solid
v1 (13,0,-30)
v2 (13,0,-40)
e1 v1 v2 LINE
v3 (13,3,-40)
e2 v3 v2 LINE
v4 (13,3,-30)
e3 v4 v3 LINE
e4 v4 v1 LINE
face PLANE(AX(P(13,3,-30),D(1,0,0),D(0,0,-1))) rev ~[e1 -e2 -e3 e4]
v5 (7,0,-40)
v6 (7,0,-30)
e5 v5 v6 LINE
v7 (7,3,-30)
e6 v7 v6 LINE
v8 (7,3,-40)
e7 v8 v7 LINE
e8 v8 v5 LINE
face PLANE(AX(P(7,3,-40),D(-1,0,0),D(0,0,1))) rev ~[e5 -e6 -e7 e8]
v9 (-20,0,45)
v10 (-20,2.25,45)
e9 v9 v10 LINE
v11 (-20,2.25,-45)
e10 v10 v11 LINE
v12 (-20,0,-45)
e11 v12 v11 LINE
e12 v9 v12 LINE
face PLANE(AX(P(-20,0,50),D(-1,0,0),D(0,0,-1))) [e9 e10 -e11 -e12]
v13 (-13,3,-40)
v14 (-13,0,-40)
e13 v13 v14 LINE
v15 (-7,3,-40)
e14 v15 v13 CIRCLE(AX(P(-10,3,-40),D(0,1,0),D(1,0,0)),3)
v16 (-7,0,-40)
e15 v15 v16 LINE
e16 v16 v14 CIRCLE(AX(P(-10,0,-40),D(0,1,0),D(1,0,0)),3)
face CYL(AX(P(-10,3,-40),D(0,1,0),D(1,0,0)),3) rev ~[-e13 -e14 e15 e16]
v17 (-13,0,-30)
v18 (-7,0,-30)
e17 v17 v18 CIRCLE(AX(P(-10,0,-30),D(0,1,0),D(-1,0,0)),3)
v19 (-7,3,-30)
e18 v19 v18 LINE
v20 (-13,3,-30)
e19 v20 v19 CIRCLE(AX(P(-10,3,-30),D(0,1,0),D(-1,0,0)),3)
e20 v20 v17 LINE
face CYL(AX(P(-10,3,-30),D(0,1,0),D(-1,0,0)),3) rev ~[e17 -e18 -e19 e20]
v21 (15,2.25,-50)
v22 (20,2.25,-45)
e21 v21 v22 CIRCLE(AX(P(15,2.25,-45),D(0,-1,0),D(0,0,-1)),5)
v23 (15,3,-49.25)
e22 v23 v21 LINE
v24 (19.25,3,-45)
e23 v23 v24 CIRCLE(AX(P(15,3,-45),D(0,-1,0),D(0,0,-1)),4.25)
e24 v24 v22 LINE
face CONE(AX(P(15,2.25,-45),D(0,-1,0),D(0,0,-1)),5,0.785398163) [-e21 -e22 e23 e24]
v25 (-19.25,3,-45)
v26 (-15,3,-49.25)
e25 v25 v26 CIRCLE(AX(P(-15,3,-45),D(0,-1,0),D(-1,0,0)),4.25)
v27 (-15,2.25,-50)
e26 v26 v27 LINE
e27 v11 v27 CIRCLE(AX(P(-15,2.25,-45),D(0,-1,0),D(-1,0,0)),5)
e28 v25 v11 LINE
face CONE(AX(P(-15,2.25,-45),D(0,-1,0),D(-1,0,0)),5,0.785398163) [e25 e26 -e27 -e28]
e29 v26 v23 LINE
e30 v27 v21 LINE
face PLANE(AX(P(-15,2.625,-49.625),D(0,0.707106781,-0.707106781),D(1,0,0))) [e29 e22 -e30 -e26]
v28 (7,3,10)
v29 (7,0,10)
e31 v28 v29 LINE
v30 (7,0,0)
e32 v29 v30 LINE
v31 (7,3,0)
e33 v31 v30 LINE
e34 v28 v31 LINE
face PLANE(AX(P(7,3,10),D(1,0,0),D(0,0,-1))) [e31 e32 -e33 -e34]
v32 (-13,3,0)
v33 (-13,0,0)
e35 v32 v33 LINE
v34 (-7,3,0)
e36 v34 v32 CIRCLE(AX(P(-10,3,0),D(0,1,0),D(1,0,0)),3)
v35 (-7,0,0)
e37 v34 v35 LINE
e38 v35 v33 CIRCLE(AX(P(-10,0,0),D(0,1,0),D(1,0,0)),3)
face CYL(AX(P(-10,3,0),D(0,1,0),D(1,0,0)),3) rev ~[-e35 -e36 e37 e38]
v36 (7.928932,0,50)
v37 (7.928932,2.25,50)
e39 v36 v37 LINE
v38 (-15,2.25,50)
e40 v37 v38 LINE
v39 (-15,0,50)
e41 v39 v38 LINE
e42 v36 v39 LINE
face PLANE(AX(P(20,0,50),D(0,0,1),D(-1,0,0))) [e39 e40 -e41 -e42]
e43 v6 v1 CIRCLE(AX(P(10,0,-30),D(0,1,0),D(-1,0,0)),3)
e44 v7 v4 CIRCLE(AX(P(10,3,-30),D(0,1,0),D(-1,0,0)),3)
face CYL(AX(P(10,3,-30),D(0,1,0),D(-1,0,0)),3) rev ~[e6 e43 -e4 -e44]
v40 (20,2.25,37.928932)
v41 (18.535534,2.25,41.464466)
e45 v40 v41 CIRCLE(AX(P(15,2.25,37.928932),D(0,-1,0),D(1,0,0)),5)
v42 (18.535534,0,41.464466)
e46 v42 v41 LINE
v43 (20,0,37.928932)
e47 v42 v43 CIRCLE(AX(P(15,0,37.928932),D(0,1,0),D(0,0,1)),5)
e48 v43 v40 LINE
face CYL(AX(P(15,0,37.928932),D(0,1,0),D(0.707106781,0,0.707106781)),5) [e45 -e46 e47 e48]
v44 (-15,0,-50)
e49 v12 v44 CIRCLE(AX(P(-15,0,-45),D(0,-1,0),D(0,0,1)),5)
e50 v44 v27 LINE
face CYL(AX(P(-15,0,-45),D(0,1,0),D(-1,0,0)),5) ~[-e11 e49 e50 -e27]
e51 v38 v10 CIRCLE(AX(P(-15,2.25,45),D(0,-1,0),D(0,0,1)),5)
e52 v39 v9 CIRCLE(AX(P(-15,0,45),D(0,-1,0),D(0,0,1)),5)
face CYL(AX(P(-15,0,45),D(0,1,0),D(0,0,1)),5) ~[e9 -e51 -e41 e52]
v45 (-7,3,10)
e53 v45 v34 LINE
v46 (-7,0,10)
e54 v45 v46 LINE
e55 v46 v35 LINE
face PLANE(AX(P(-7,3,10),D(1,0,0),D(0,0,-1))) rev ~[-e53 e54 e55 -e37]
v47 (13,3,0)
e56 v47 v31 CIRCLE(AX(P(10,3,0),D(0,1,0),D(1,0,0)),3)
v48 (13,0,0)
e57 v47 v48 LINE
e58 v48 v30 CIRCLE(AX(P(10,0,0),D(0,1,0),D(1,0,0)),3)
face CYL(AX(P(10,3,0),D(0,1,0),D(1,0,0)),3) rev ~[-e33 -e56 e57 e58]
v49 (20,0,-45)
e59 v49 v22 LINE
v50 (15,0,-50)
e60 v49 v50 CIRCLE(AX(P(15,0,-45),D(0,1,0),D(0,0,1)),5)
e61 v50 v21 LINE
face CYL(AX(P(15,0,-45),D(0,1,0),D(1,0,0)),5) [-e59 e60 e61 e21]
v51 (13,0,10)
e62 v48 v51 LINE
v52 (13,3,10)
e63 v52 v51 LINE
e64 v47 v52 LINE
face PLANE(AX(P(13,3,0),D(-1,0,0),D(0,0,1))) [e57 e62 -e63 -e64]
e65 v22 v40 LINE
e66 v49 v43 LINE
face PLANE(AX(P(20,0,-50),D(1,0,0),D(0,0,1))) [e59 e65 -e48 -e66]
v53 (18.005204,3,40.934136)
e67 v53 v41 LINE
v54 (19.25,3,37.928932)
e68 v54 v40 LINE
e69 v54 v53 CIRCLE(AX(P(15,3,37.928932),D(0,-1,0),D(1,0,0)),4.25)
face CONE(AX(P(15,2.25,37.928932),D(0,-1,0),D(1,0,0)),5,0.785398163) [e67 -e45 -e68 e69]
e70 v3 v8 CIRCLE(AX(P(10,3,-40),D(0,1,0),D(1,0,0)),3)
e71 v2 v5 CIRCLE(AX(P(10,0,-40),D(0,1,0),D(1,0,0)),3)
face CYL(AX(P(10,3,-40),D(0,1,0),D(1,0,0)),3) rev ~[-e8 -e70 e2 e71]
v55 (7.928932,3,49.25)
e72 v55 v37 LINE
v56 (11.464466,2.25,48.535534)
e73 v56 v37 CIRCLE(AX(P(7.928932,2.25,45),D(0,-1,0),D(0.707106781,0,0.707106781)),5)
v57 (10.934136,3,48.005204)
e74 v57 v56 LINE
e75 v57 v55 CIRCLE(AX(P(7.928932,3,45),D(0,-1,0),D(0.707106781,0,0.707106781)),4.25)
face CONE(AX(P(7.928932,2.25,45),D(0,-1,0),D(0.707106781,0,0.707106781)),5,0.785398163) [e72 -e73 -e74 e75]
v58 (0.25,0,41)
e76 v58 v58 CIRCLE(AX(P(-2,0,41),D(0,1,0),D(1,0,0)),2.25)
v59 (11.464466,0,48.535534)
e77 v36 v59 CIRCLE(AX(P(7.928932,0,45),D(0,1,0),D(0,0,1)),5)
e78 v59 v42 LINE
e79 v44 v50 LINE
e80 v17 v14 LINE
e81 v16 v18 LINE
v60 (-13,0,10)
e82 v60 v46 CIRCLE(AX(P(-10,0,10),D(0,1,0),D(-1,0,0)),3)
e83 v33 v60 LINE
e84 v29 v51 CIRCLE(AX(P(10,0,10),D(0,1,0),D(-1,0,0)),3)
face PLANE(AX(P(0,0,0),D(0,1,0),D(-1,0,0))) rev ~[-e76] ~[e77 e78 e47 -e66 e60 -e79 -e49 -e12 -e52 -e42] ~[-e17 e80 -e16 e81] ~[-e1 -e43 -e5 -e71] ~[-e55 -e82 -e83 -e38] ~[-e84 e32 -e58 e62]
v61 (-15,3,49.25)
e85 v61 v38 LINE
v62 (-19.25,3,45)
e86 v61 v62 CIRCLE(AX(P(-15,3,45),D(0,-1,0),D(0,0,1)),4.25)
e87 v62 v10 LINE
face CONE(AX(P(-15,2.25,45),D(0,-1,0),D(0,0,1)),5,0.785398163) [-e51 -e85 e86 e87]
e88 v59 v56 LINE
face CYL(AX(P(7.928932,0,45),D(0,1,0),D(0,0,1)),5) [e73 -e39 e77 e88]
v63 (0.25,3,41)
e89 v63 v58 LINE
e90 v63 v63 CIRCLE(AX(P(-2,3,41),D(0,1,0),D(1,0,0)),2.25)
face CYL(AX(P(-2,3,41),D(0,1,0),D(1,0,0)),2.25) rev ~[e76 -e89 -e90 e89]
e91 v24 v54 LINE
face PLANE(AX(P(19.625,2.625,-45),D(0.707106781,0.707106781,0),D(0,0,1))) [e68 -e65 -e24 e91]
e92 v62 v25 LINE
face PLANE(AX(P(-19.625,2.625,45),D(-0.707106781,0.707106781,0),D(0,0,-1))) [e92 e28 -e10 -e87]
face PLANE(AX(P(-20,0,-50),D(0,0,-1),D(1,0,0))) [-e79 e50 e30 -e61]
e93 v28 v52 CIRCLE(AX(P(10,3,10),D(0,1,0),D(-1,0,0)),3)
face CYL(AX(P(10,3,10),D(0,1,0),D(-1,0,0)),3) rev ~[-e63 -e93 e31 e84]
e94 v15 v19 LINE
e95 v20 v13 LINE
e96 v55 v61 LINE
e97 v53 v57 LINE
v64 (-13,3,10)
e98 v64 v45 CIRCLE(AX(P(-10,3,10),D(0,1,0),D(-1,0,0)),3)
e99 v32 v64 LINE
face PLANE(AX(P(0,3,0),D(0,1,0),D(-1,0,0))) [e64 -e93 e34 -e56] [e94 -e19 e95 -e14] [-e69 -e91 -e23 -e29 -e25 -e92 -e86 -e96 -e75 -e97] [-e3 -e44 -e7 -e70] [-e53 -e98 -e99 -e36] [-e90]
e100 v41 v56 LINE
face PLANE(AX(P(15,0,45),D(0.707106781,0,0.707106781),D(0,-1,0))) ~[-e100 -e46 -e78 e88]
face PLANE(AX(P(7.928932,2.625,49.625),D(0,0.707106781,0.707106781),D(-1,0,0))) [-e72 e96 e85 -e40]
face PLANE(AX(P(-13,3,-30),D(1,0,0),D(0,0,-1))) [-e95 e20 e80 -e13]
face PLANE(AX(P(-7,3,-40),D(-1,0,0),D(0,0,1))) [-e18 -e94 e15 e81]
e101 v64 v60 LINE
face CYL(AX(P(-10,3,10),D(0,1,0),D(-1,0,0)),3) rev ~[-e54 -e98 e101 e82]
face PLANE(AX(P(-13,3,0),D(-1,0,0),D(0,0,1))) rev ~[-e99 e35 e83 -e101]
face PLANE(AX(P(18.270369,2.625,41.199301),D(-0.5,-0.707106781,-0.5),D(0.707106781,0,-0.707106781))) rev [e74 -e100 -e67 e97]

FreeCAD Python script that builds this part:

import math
import FreeCAD as App
import Part
import Sketcher
Q = App.Units.Quantity


def edges_at(feature, points):
    """Names of the edges that pass closest to the given points."""
    edges = feature.Shape.Edges
    near = lambda p: min(range(len(edges)), key=lambda i: edges[i].distToShape(Part.Vertex(*p))[0])
    return sorted({f"Edge{near(p) + 1}" for p in points})


def add_polygon(sketch, points):
    """Adds a closed chain of lines whose ends are joined by coincident constraints."""
    first, n = sketch.GeometryCount, len(points)
    for a, b in zip(points, points[1:] + points[:1]):
        sketch.addGeometry(Part.LineSegment(App.Vector(*a, 0), App.Vector(*b, 0)), False)
    for i in range(n):
        sketch.addConstraint(Sketcher.Constraint("Coincident", first + i, 2, first + (i + 1) % n, 1))

doc = App.newDocument("Part")
body = doc.addObject("PartDesign::Body", "Body")

# Sketch on XZ plane
sketch1 = body.newObject("Sketcher::SketchObject", "Sketch")
sketch1.AttachmentSupport = (doc.getObject("XZ_Plane"), [""])
sketch1.MapMode = "FlatFace"
add_polygon(sketch1, [(-20, 50), (20, 50), (20, -50), (-20, -50)])  # lines 0-3
sketch1.addConstraint([
    Sketcher.Constraint("Horizontal", 0),
    Sketcher.Constraint("Vertical", 1),
    Sketcher.Constraint("Horizontal", 2),
    Sketcher.Constraint("Vertical", 3),
    Sketcher.Constraint("Symmetric", 0, 2, 2, 2, -1, 1),
    Sketcher.Constraint("DistanceX", 0, 1, 0, 2, Q("40 mm")),
    Sketcher.Constraint("DistanceY", 1, 2, 1, 1, Q("100 mm")),
])
pad1 = body.newObject("PartDesign::Pad", "Pad")
pad1.Profile = sketch1
pad1.Length = 3
pad1.Reversed = True

# Sketch on XZ plane
sketch2 = body.newObject("Sketcher::SketchObject", "Sketch001")
sketch2.AttachmentSupport = (doc.getObject("XZ_Plane"), [""])
sketch2.MapMode = "FlatFace"
sketch2.AttachmentOffset = App.Placement(App.Vector(0, 0, -3), App.Rotation())
sketch2.addGeometry(Part.Circle(App.Vector(-2, 41, 0), App.Vector(0, 0, 1), 2.2), False)
sketch2.addConstraint([
    Sketcher.Constraint("Diameter", 0, Q("4.5 mm")),
    Sketcher.Constraint("DistanceX", 0, 3, -1, 1, Q("2 mm")),
    Sketcher.Constraint("DistanceY", -1, 1, 0, 3, Q("41 mm")),
])
pocket1 = body.newObject("PartDesign::Pocket", "Pocket")
pocket1.Profile = sketch2
pocket1.Length = 3
pocket1.Reversed = True

# Sketch on XZ plane
sketch3 = body.newObject("Sketcher::SketchObject", "Sketch002")
sketch3.AttachmentSupport = (doc.getObject("XZ_Plane"), [""])
sketch3.MapMode = "FlatFace"
sketch3.AttachmentOffset = App.Placement(App.Vector(0, 0, -3), App.Rotation())
sketch3.addGeometry([
    Part.ArcOfCircle(Part.Circle(App.Vector(-10, 10, 0), App.Vector(0, 0, 1), 3), math.radians(0), math.radians(180)),  # 0
    Part.LineSegment(App.Vector(-7, 10, 0), App.Vector(-7, 0, 0)),  # 1
    Part.ArcOfCircle(Part.Circle(App.Vector(-10, 0, 0), App.Vector(0, 0, 1), 3), math.radians(180), math.radians(360)),  # 2
    Part.LineSegment(App.Vector(-13, 0, 0), App.Vector(-13, 10, 0)),  # 3
    Part.LineSegment(App.Vector(-7, -30, 0), App.Vector(-7, -40, 0)),  # 4
    Part.ArcOfCircle(Part.Circle(App.Vector(-10, -40, 0), App.Vector(0, 0, 1), 3), math.radians(180), math.radians(360)),  # 5
    Part.LineSegment(App.Vector(-13, -40, 0), App.Vector(-13, -30, 0)),  # 6
    Part.ArcOfCircle(Part.Circle(App.Vector(-10, -30, 0), App.Vector(0, 0, 1), 3), math.radians(0), math.radians(180)),  # 7
    Part.LineSegment(App.Vector(7, 0, 0), App.Vector(7, 10, 0)),  # 8
    Part.ArcOfCircle(Part.Circle(App.Vector(10, 10, 0), App.Vector(0, 0, 1), 3), math.radians(0), math.radians(180)),  # 9
    Part.LineSegment(App.Vector(13, 10, 0), App.Vector(13, 0, 0)),  # 10
    Part.ArcOfCircle(Part.Circle(App.Vector(10, 0, 0), App.Vector(0, 0, 1), 3), math.radians(180), math.radians(360)),  # 11
    Part.ArcOfCircle(Part.Circle(App.Vector(10, -40, 0), App.Vector(0, 0, 1), 3), math.radians(180), math.radians(360)),  # 12
    Part.LineSegment(App.Vector(7, -40, 0), App.Vector(7, -30, 0)),  # 13
    Part.ArcOfCircle(Part.Circle(App.Vector(10, -30, 0), App.Vector(0, 0, 1), 3), math.radians(0), math.radians(180)),  # 14
    Part.LineSegment(App.Vector(13, -30, 0), App.Vector(13, -40, 0)),  # 15
], False)
sketch3.addConstraint([
    Sketcher.Constraint("Tangent", 0, 1, 1, 1),
    Sketcher.Constraint("Tangent", 1, 2, 2, 2),
    Sketcher.Constraint("Tangent", 2, 1, 3, 1),
    Sketcher.Constraint("Tangent", 3, 2, 0, 2),
    Sketcher.Constraint("Tangent", 4, 2, 5, 2),
    Sketcher.Constraint("Tangent", 5, 1, 6, 1),
    Sketcher.Constraint("Tangent", 6, 2, 7, 2),
    Sketcher.Constraint("Tangent", 7, 1, 4, 1),
    Sketcher.Constraint("Tangent", 8, 2, 9, 2),
    Sketcher.Constraint("Tangent", 9, 1, 10, 1),
    Sketcher.Constraint("Tangent", 10, 2, 11, 2),
    Sketcher.Constraint("Tangent", 11, 1, 8, 1),
    Sketcher.Constraint("Tangent", 12, 1, 13, 1),
    Sketcher.Constraint("Tangent", 13, 2, 14, 2),
    Sketcher.Constraint("Tangent", 14, 1, 15, 1),
    Sketcher.Constraint("Tangent", 15, 2, 12, 2),
    Sketcher.Constraint("Vertical", 1),
    Sketcher.Constraint("Vertical", 3),
    Sketcher.Constraint("Vertical", 4),
    Sketcher.Constraint("Vertical", 6),
    Sketcher.Constraint("Vertical", 8),
    Sketcher.Constraint("Vertical", 10),
    Sketcher.Constraint("Vertical", 13),
    Sketcher.Constraint("Vertical", 15),
    Sketcher.Constraint("Equal", 2, 5),
    Sketcher.Constraint("Equal", 7, 9),
    Sketcher.Constraint("Equal", 11, 12),
    Sketcher.Constraint("Symmetric", 2, 3, 11, 3, -1, 1),
    Sketcher.Constraint("Symmetric", 5, 3, 12, 3, -2),
    Sketcher.Constraint("PointOnObject", 2, 3, -1),
    Sketcher.Constraint("Horizontal", 0, 3, 9, 3),
    Sketcher.Constraint("Horizontal", 7, 3, 14, 3),
    Sketcher.Constraint("Vertical", 2, 3, 5, 3),
    Sketcher.Constraint("Equal", 3, 4),
    Sketcher.Constraint("Radius", 0, Q("3 mm")),
    Sketcher.Constraint("DistanceY", 1, 2, 1, 1, Q("10 mm")),
    Sketcher.Constraint("DistanceX", 0, 3, -1, 1, Q("10 mm")),
    Sketcher.Constraint("DistanceY", 5, 3, -1, 1, Q("40 mm")),
])
pocket2 = body.newObject("PartDesign::Pocket", "Pocket001")
pocket2.Profile = sketch3
pocket2.Length = 3
pocket2.Reversed = True
doc.recompute()

chamfer = body.newObject("PartDesign::Chamfer", "Chamfer")
chamfer.Base = (pocket2, edges_at(pocket2, [(20, 1.5, 50)]))
chamfer.Size = 10
doc.recompute()

fillet = body.newObject("PartDesign::Fillet", "Fillet")
fillet.Base = (chamfer, edges_at(chamfer, [
    (20, 1.5, 40),
    (10, 1.5, 50),
    (20, 1.5, -50),
    (-20, 1.5, -50),
    (-20, 1.5, 50),
]))
fillet.Radius = 5
doc.recompute()

chamfer2 = body.newObject("PartDesign::Chamfer", "Chamfer001")
chamfer2.Base = (fillet, edges_at(fillet, [
    (20, 3, -3.535),
    (18.535, 3, -48.535),
    (0, 3, -50),
    (-18.535, 3, -48.535),
    (-20, 3, 0),
    (-18.535, 3, 48.535),
    (-3.535, 3, 50),
    (9.842, 3, 49.619),
    (15, 3, 45),
    (19.619, 3, 39.842),
]))
chamfer2.Size = 0.75

doc.recompute()
